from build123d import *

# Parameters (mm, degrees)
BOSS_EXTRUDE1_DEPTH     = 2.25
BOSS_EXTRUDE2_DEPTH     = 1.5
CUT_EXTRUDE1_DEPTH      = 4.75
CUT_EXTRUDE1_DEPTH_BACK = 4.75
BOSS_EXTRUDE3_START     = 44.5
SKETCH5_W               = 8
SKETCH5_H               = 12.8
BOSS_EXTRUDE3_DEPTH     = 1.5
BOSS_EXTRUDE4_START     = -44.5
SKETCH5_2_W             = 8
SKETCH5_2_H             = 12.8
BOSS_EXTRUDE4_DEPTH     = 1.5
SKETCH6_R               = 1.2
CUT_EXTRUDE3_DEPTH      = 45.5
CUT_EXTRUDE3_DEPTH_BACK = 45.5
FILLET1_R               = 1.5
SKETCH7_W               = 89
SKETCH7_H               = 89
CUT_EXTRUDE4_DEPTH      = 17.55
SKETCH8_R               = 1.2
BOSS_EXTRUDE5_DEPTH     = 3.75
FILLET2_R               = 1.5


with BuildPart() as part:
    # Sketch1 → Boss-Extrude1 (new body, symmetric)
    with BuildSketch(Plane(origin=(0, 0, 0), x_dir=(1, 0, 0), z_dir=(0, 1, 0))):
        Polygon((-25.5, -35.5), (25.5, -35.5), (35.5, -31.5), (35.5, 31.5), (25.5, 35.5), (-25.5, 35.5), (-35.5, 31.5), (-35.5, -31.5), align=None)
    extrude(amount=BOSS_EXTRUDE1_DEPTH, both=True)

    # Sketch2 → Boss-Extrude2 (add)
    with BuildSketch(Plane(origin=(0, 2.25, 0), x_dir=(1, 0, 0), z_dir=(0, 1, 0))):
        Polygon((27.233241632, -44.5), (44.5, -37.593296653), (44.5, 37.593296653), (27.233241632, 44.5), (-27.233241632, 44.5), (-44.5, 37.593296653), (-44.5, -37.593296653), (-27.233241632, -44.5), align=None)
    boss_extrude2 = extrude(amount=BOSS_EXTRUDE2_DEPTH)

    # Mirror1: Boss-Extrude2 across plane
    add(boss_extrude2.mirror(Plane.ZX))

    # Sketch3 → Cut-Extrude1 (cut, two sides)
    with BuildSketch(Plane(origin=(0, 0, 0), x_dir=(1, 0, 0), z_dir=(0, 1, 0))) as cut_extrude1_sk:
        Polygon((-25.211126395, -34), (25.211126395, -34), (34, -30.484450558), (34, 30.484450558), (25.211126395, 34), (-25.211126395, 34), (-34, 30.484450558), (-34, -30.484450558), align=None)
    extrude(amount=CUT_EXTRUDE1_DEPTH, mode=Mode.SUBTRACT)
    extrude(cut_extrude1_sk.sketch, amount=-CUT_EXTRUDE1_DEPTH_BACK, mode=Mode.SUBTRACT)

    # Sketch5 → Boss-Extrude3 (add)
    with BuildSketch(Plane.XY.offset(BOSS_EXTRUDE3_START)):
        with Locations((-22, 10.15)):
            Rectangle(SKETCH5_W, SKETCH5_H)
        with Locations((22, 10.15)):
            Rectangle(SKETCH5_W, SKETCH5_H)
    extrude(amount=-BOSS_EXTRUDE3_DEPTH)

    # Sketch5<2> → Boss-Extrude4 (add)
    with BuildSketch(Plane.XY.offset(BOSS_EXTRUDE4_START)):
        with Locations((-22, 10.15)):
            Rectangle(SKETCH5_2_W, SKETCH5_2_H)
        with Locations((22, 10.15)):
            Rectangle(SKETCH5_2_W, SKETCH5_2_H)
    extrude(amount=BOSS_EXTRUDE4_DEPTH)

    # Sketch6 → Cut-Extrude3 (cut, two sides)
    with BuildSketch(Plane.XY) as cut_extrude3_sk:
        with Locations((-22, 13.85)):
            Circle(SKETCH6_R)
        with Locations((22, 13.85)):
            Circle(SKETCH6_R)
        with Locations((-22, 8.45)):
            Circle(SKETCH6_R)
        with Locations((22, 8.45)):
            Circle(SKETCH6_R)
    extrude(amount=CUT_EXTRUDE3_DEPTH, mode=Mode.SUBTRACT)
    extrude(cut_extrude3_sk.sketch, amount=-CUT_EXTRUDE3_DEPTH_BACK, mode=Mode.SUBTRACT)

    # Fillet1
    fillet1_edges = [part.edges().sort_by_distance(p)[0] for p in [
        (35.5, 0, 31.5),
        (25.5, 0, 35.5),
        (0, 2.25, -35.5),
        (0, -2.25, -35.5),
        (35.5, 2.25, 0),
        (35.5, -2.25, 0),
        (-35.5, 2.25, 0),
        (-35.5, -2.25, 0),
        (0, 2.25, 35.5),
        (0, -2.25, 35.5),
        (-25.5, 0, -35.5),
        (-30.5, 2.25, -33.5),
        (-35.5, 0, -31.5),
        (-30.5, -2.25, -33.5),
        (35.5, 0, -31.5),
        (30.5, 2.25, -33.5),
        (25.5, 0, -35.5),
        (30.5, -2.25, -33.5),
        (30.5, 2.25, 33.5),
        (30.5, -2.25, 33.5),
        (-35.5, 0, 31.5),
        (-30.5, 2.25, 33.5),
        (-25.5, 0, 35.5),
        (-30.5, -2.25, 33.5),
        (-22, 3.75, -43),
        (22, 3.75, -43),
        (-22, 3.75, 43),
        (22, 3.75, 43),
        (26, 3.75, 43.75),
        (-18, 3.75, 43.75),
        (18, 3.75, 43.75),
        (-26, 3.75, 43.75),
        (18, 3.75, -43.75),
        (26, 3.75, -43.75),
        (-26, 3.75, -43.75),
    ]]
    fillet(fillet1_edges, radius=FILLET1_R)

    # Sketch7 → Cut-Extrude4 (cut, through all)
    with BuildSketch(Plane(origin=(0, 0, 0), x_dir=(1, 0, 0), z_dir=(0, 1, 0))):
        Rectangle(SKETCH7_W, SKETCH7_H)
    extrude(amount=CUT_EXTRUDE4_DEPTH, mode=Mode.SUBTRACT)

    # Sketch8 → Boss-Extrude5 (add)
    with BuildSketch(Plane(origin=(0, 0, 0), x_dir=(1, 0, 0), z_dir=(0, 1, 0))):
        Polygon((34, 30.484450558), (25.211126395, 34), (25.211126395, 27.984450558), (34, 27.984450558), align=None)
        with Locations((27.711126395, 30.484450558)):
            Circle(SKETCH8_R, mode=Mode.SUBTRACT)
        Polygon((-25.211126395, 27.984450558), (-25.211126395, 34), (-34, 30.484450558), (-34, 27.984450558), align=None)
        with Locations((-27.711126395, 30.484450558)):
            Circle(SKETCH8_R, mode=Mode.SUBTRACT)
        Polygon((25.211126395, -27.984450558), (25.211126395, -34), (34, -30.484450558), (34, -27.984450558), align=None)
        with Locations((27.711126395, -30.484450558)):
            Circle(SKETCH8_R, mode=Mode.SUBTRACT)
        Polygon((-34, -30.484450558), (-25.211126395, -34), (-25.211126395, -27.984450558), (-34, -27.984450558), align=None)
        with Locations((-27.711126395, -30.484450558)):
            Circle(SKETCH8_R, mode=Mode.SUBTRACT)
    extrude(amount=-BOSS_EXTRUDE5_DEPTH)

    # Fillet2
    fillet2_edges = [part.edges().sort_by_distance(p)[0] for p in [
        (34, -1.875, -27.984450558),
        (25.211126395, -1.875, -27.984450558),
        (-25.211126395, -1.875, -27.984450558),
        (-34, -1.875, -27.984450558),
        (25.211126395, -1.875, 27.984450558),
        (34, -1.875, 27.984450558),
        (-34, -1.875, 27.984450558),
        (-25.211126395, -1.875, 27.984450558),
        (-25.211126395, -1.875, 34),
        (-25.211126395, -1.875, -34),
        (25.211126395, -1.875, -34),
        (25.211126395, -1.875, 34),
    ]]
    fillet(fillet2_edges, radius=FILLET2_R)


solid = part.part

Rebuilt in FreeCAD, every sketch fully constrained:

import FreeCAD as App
import Part
import Sketcher
Q = App.Units.Quantity


def edges_at(feature, points):
    """Names of the edges that pass closest to the given points."""
    edges = feature.Shape.Edges
    near = lambda p: min(range(len(edges)), key=lambda i: edges[i].distToShape(Part.Vertex(*p))[0])
    return sorted({f"Edge{near(p) + 1}" for p in points})

doc = App.newDocument("Part")
body = doc.addObject("PartDesign::Body", "Body")

# Sketch on XZ plane
sketch1 = body.newObject("Sketcher::SketchObject", "Sketch")
sketch1.AttachmentSupport = (doc.getObject("XZ_Plane"), [""])
sketch1.MapMode = "FlatFace"
sketch1.addGeometry([
    Part.LineSegment(App.Vector(-26, 36, 0), App.Vector(26, 36, 0)),  # 0
    Part.LineSegment(App.Vector(26, 36, 0), App.Vector(36, 32, 0)),  # 1
    Part.LineSegment(App.Vector(36, 32, 0), App.Vector(36, -32, 0)),  # 2
    Part.LineSegment(App.Vector(36, -32, 0), App.Vector(26, -36, 0)),  # 3
    Part.LineSegment(App.Vector(26, -36, 0), App.Vector(-26, -36, 0)),  # 4
    Part.LineSegment(App.Vector(-26, -36, 0), App.Vector(-36, -32, 0)),  # 5
    Part.LineSegment(App.Vector(-36, -32, 0), App.Vector(-36, 32, 0)),  # 6
    Part.LineSegment(App.Vector(-36, 32, 0), App.Vector(-26, 36, 0)),  # 7
], False)
sketch1.addConstraint([
    Sketcher.Constraint("Coincident", 0, 2, 1, 1),
    Sketcher.Constraint("Coincident", 1, 2, 2, 1),
    Sketcher.Constraint("Coincident", 2, 2, 3, 1),
    Sketcher.Constraint("Coincident", 3, 2, 4, 1),
    Sketcher.Constraint("Coincident", 4, 2, 5, 1),
    Sketcher.Constraint("Coincident", 5, 2, 6, 1),
    Sketcher.Constraint("Coincident", 6, 2, 7, 1),
    Sketcher.Constraint("Coincident", 7, 2, 0, 1),
    Sketcher.Constraint("Horizontal", 0),
    Sketcher.Constraint("Vertical", 2),
    Sketcher.Constraint("Horizontal", 4),
    Sketcher.Constraint("Vertical", 6),
    Sketcher.Constraint("Symmetric", 0, 2, 4, 2, -1, 1),
    Sketcher.Constraint("Symmetric", 1, 2, 5, 2, -1, 1),
    Sketcher.Constraint("Parallel", 3, 7),
    Sketcher.Constraint("Horizontal", 2, 2, 5, 2),
    Sketcher.Constraint("Horizontal", 1, 2, 6, 2),
    Sketcher.Constraint("Vertical", 0, 2, 3, 2),
    Sketcher.Constraint("DistanceX", 0, 1, 0, 2, Q("51 mm")),
    Sketcher.Constraint("DistanceY", 2, 2, 2, 1, Q("63 mm")),
    Sketcher.Constraint("DistanceX", 0, 2, 1, 2, Q("10 mm")),
    Sketcher.Constraint("DistanceY", 1, 2, 0, 2, Q("4 mm")),
])
pad1 = body.newObject("PartDesign::Pad", "Pad")
pad1.Profile = sketch1
pad1.Length = 4.5
pad1.Midplane = True

# Sketch on XZ plane
sketch2 = body.newObject("Sketcher::SketchObject", "Sketch001")
sketch2.AttachmentSupport = (doc.getObject("XZ_Plane"), [""])
sketch2.MapMode = "FlatFace"
sketch2.AttachmentOffset = App.Placement(App.Vector(0, 0, -2.25), App.Rotation())
sketch2.addGeometry([
    Part.LineSegment(App.Vector(27, 44, 0), App.Vector(44, 38, 0)),  # 0
    Part.LineSegment(App.Vector(44, 38, 0), App.Vector(44, -38, 0)),  # 1
    Part.LineSegment(App.Vector(44, -38, 0), App.Vector(27, -44, 0)),  # 2
    Part.LineSegment(App.Vector(27, -44, 0), App.Vector(-27, -44, 0)),  # 3
    Part.LineSegment(App.Vector(-27, -44, 0), App.Vector(-44, -38, 0)),  # 4
    Part.LineSegment(App.Vector(-44, -38, 0), App.Vector(-44, 38, 0)),  # 5
    Part.LineSegment(App.Vector(-44, 38, 0), App.Vector(-27, 44, 0)),  # 6
    Part.LineSegment(App.Vector(-27, 44, 0), App.Vector(27, 44, 0)),  # 7
], False)
sketch2.addConstraint([
    Sketcher.Constraint("Coincident", 0, 2, 1, 1),
    Sketcher.Constraint("Coincident", 1, 2, 2, 1),
    Sketcher.Constraint("Coincident", 2, 2, 3, 1),
    Sketcher.Constraint("Coincident", 3, 2, 4, 1),
    Sketcher.Constraint("Coincident", 4, 2, 5, 1),
    Sketcher.Constraint("Coincident", 5, 2, 6, 1),
    Sketcher.Constraint("Coincident", 6, 2, 7, 1),
    Sketcher.Constraint("Coincident", 7, 2, 0, 1),
    Sketcher.Constraint("Vertical", 1),
    Sketcher.Constraint("Horizontal", 3),
    Sketcher.Constraint("Vertical", 5),
    Sketcher.Constraint("Horizontal", 7),
    Sketcher.Constraint("Symmetric", 0, 2, 4, 2, -1, 1),
    Sketcher.Constraint("Symmetric", 2, 2, 6, 2, -1, 1),
    Sketcher.Constraint("Parallel", 0, 4),
    Sketcher.Constraint("Parallel", 2, 6),
    Sketcher.Constraint("Horizontal", 1, 2, 4, 2),
    Sketcher.Constraint("Vertical", 3, 2, 6, 2),
    Sketcher.Constraint("DistanceX", 4, 2, 1, 2, Q("89 mm")),
    Sketcher.Constraint("DistanceY", 3, 2, 6, 2, Q("89 mm")),
    Sketcher.Constraint("DistanceX", 3, 2, 3, 1, Q("54.466483 mm")),
    Sketcher.Constraint("DistanceY", 1, 2, 1, 1, Q("75.186593 mm")),
])
pad2 = body.newObject("PartDesign::Pad", "Pad001")
pad2.Profile = sketch2
pad2.Length = 1.5
pad2.Reversed = True
doc.recompute()

mirrored = body.newObject("PartDesign::Mirrored", "Mirrored")
mirrored.Originals = [pad2]
mirrored.MirrorPlane = (doc.getObject("XZ_Plane"), [""])
body.Tip = mirrored

# Sketch on XZ plane
sketch3 = body.newObject("Sketcher::SketchObject", "Sketch002")
sketch3.AttachmentSupport = (doc.getObject("XZ_Plane"), [""])
sketch3.MapMode = "FlatFace"
sketch3.addGeometry([
    Part.LineSegment(App.Vector(-25, 34, 0), App.Vector(25, 34, 0)),  # 0
    Part.LineSegment(App.Vector(25, 34, 0), App.Vector(34, 30, 0)),  # 1
    Part.LineSegment(App.Vector(34, 30, 0), App.Vector(34, -30, 0)),  # 2
    Part.LineSegment(App.Vector(34, -30, 0), App.Vector(25, -34, 0)),  # 3
    Part.LineSegment(App.Vector(25, -34, 0), App.Vector(-25, -34, 0)),  # 4
    Part.LineSegment(App.Vector(-25, -34, 0), App.Vector(-34, -30, 0)),  # 5
    Part.LineSegment(App.Vector(-34, -30, 0), App.Vector(-34, 30, 0)),  # 6
    Part.LineSegment(App.Vector(-34, 30, 0), App.Vector(-25, 34, 0)),  # 7
], False)
sketch3.addConstraint([
    Sketcher.Constraint("Coincident", 0, 2, 1, 1),
    Sketcher.Constraint("Coincident", 1, 2, 2, 1),
    Sketcher.Constraint("Coincident", 2, 2, 3, 1),
    Sketcher.Constraint("Coincident", 3, 2, 4, 1),
    Sketcher.Constraint("Coincident", 4, 2, 5, 1),
    Sketcher.Constraint("Coincident", 5, 2, 6, 1),
    Sketcher.Constraint("Coincident", 6, 2, 7, 1),
    Sketcher.Constraint("Coincident", 7, 2, 0, 1),
    Sketcher.Constraint("Horizontal", 0),
    Sketcher.Constraint("Vertical", 2),
    Sketcher.Constraint("Horizontal", 4),
    Sketcher.Constraint("Vertical", 6),
    Sketcher.Constraint("Symmetric", 0, 2, 4, 2, -1, 1),
    Sketcher.Constraint("Symmetric", 1, 2, 5, 2, -1, 1),
    Sketcher.Constraint("Parallel", 3, 7),
    Sketcher.Constraint("Horizontal", 2, 2, 5, 2),
    Sketcher.Constraint("Horizontal", 1, 2, 6, 2),
    Sketcher.Constraint("Vertical", 0, 2, 3, 2),
    Sketcher.Constraint("DistanceY", -1, 1, 0, 2, Q("34 mm")),
    Sketcher.Constraint("DistanceX", -1, 1, 1, 2, Q("34 mm")),
    Sketcher.Constraint("DistanceY", 2, 2, 2, 1, Q("60.968901 mm")),
    Sketcher.Constraint("DistanceX", 0, 1, 0, 2, Q("50.422253 mm")),
])
pocket1 = body.newObject("PartDesign::Pocket", "Pocket")
pocket1.Profile = sketch3
pocket1.Type = "ThroughAll"
pocket1.Midplane = True

# Sketch on XY plane
sketch4 = body.newObject("Sketcher::SketchObject", "Sketch003")
sketch4.AttachmentSupport = (doc.getObject("XY_Plane"), [""])
sketch4.MapMode = "FlatFace"
sketch4.AttachmentOffset = App.Placement(App.Vector(0, 0, 44.5), App.Rotation())
sketch4.addGeometry([
    Part.LineSegment(App.Vector(-26, 17, 0), App.Vector(-26, 4, 0)),  # 0
    Part.LineSegment(App.Vector(-26, 4, 0), App.Vector(-18, 4, 0)),  # 1
    Part.LineSegment(App.Vector(-18, 4, 0), App.Vector(-18, 17, 0)),  # 2
    Part.LineSegment(App.Vector(-18, 17, 0), App.Vector(-26, 17, 0)),  # 3
    Part.LineSegment(App.Vector(18, 17, 0), App.Vector(18, 4, 0)),  # 4
    Part.LineSegment(App.Vector(18, 4, 0), App.Vector(26, 4, 0)),  # 5
    Part.LineSegment(App.Vector(26, 4, 0), App.Vector(26, 17, 0)),  # 6
    Part.LineSegment(App.Vector(26, 17, 0), App.Vector(18, 17, 0)),  # 7
], False)
sketch4.addConstraint([
    Sketcher.Constraint("Coincident", 0, 2, 1, 1),
    Sketcher.Constraint("Coincident", 1, 2, 2, 1),
    Sketcher.Constraint("Coincident", 2, 2, 3, 1),
    Sketcher.Constraint("Coincident", 3, 2, 0, 1),
    Sketcher.Constraint("Coincident", 4, 2, 5, 1),
    Sketcher.Constraint("Coincident", 5, 2, 6, 1),
    Sketcher.Constraint("Coincident", 6, 2, 7, 1),
    Sketcher.Constraint("Coincident", 7, 2, 4, 1),
    Sketcher.Constraint("Vertical", 0),
    Sketcher.Constraint("Horizontal", 1),
    Sketcher.Constraint("Vertical", 2),
    Sketcher.Constraint("Horizontal", 3),
    Sketcher.Constraint("Vertical", 4),
    Sketcher.Constraint("Horizontal", 5),
    Sketcher.Constraint("Vertical", 6),
    Sketcher.Constraint("Horizontal", 7),
    Sketcher.Constraint("Symmetric", 1, 2, 4, 2, -2),
    Sketcher.Constraint("Symmetric", 3, 2, 6, 2, -2),
    Sketcher.Constraint("DistanceX", 1, 1, 1, 2, Q("8 mm")),
    Sketcher.Constraint("DistanceY", 0, 2, 0, 1, Q("12.8 mm")),
    Sketcher.Constraint("DistanceX", 0, 2, -1, 1, Q("26 mm")),
    Sketcher.Constraint("DistanceY", -1, 1, 0, 2, Q("3.75 mm")),
])
pad3 = body.newObject("PartDesign::Pad", "Pad002")
pad3.Profile = sketch4
pad3.Length = 1.5
pad3.Reversed = True

# Sketch on XY plane
sketch5 = body.newObject("Sketcher::SketchObject", "Sketch004")
sketch5.AttachmentSupport = (doc.getObject("XY_Plane"), [""])
sketch5.MapMode = "FlatFace"
sketch5.AttachmentOffset = App.Placement(App.Vector(0, 0, -44.5), App.Rotation())
sketch5.addGeometry([
    Part.LineSegment(App.Vector(-26, 17, 0), App.Vector(-26, 4, 0)),  # 0
    Part.LineSegment(App.Vector(-26, 4, 0), App.Vector(-18, 4, 0)),  # 1
    Part.LineSegment(App.Vector(-18, 4, 0), App.Vector(-18, 17, 0)),  # 2
    Part.LineSegment(App.Vector(-18, 17, 0), App.Vector(-26, 17, 0)),  # 3
    Part.LineSegment(App.Vector(18, 17, 0), App.Vector(18, 4, 0)),  # 4
    Part.LineSegment(App.Vector(18, 4, 0), App.Vector(26, 4, 0)),  # 5
    Part.LineSegment(App.Vector(26, 4, 0), App.Vector(26, 17, 0)),  # 6
    Part.LineSegment(App.Vector(26, 17, 0), App.Vector(18, 17, 0)),  # 7
], False)
sketch5.addConstraint([
    Sketcher.Constraint("Coincident", 0, 2, 1, 1),
    Sketcher.Constraint("Coincident", 1, 2, 2, 1),
    Sketcher.Constraint("Coincident", 2, 2, 3, 1),
    Sketcher.Constraint("Coincident", 3, 2, 0, 1),
    Sketcher.Constraint("Coincident", 4, 2, 5, 1),
    Sketcher.Constraint("Coincident", 5, 2, 6, 1),
    Sketcher.Constraint("Coincident", 6, 2, 7, 1),
    Sketcher.Constraint("Coincident", 7, 2, 4, 1),
    Sketcher.Constraint("Vertical", 0),
    Sketcher.Constraint("Horizontal", 1),
    Sketcher.Constraint("Vertical", 2),
    Sketcher.Constraint("Horizontal", 3),
    Sketcher.Constraint("Vertical", 4),
    Sketcher.Constraint("Horizontal", 5),
    Sketcher.Constraint("Vertical", 6),
    Sketcher.Constraint("Horizontal", 7),
    Sketcher.Constraint("Symmetric", 1, 2, 4, 2, -2),
    Sketcher.Constraint("Symmetric", 3, 2, 6, 2, -2),
    Sketcher.Constraint("DistanceX", 1, 1, 1, 2, Q("8 mm")),
    Sketcher.Constraint("DistanceY", 0, 2, 0, 1, Q("12.8 mm")),
    Sketcher.Constraint("DistanceX", 0, 2, -1, 1, Q("26 mm")),
    Sketcher.Constraint("DistanceY", -1, 1, 0, 2, Q("3.75 mm")),
])
pad4 = body.newObject("PartDesign::Pad", "Pad003")
pad4.Profile = sketch5
pad4.Length = 1.5

# Sketch on XY plane
sketch6 = body.newObject("Sketcher::SketchObject", "Sketch005")
sketch6.AttachmentSupport = (doc.getObject("XY_Plane"), [""])
sketch6.MapMode = "FlatFace"
sketch6.addGeometry([
    Part.Circle(App.Vector(-22, 13.8, 0), App.Vector(0, 0, 1), 1.2),
    Part.Circle(App.Vector(22, 13.8, 0), App.Vector(0, 0, 1), 1.2),
    Part.Circle(App.Vector(-22, 8.4, 0), App.Vector(0, 0, 1), 1.2),
    Part.Circle(App.Vector(22, 8.4, 0), App.Vector(0, 0, 1), 1.2),
], False)
sketch6.addConstraint([
    Sketcher.Constraint("Equal", 0, 1),
    Sketcher.Constraint("Equal", 1, 2),
    Sketcher.Constraint("Equal", 2, 3),
    Sketcher.Constraint("Symmetric", 0, 3, 1, 3, -2),
    Sketcher.Constraint("Symmetric", 2, 3, 3, 3, -2),
    Sketcher.Constraint("Vertical", 0, 3, 2, 3),
    Sketcher.Constraint("Diameter", 0, Q("2.4 mm")),
    Sketcher.Constraint("DistanceX", 0, 3, -1, 1, Q("22 mm")),
    Sketcher.Constraint("DistanceY", 2, 3, 0, 3, Q("5.4 mm")),
    Sketcher.Constraint("DistanceY", -1, 1, 0, 3, Q("13.85 mm")),
])
pocket2 = body.newObject("PartDesign::Pocket", "Pocket001")
pocket2.Profile = sketch6
pocket2.Type = "ThroughAll"
pocket2.Midplane = True
doc.recompute()

fillet = body.newObject("PartDesign::Fillet", "Fillet")
fillet.Base = (pocket2, edges_at(pocket2, [
    (35.5, 0, 31.5),
    (25.5, 0, 35.5),
    (0, 2.25, -35.5),
    (0, -2.25, -35.5),
    (35.5, 2.25, 0),
    (35.5, -2.25, 0),
    (-35.5, 2.25, 0),
    (-35.5, -2.25, 0),
    (0, 2.25, 35.5),
    (0, -2.25, 35.5),
    (-25.5, 0, -35.5),
    (-30.5, 2.25, -33.5),
    (-35.5, 0, -31.5),
    (-30.5, -2.25, -33.5),
    (35.5, 0, -31.5),
    (30.5, 2.25, -33.5),
    (25.5, 0, -35.5),
    (30.5, -2.25, -33.5),
    (30.5, 2.25, 33.5),
    (30.5, -2.25, 33.5),
    (-35.5, 0, 31.5),
    (-30.5, 2.25, 33.5),
    (-25.5, 0, 35.5),
    (-30.5, -2.25, 33.5),
    (-22, 3.75, -43),
    (22, 3.75, -43),
    (-22, 3.75, 43),
    (22, 3.75, 43),
    (26, 3.75, 43.75),
    (-18, 3.75, 43.75),
    (18, 3.75, 43.75),
    (-26, 3.75, 43.75),
    (18, 3.75, -43.75),
    (26, 3.75, -43.75),
    (-26, 3.75, -43.75),
]))
fillet.Radius = 1.5

# Sketch on XZ plane
sketch7 = body.newObject("Sketcher::SketchObject", "Sketch006")
sketch7.AttachmentSupport = (doc.getObject("XZ_Plane"), [""])
sketch7.MapMode = "FlatFace"
sketch7.addGeometry([
    Part.LineSegment(App.Vector(-44, -44, 0), App.Vector(-44, 44, 0)),
    Part.LineSegment(App.Vector(-44, 44, 0), App.Vector(44, 44, 0)),
    Part.LineSegment(App.Vector(44, 44, 0), App.Vector(44, -44, 0)),
    Part.LineSegment(App.Vector(44, -44, 0), App.Vector(-44, -44, 0)),
], False)
sketch7.addConstraint([
    Sketcher.Constraint("Coincident", 0, 2, 1, 1),
    Sketcher.Constraint("Coincident", 1, 2, 2, 1),
    Sketcher.Constraint("Coincident", 2, 2, 3, 1),
    Sketcher.Constraint("Coincident", 3, 2, 0, 1),
    Sketcher.Constraint("Vertical", 0),
    Sketcher.Constraint("Horizontal", 1),
    Sketcher.Constraint("Vertical", 2),
    Sketcher.Constraint("Horizontal", 3),
    Sketcher.Constraint("Symmetric", 0, 2, 2, 2, -1, 1),
    Sketcher.Constraint("Equal", 3, 0),
    Sketcher.Constraint("DistanceX", 1, 1, 1, 2, Q("89 mm")),
])
pocket3 = body.newObject("PartDesign::Pocket", "Pocket002")
pocket3.Profile = sketch7
pocket3.Type = "ThroughAll"

# Sketch on XZ plane
sketch8 = body.newObject("Sketcher::SketchObject", "Sketch007")
sketch8.AttachmentSupport = (doc.getObject("XZ_Plane"), [""])
sketch8.MapMode = "FlatFace"
sketch8.addGeometry([
    Part.LineSegment(App.Vector(34, -30.5, 0), App.Vector(25.2, -34, 0)),  # 0
    Part.LineSegment(App.Vector(25.2, -34, 0), App.Vector(25.2, -28, 0)),  # 1
    Part.LineSegment(App.Vector(25.2, -28, 0), App.Vector(34, -28, 0)),  # 2
    Part.LineSegment(App.Vector(34, -28, 0), App.Vector(34, -30.5, 0)),  # 3
    Part.Circle(App.Vector(27.7, -30.5, 0), App.Vector(0, 0, 1), 1.2),  # 4
    Part.LineSegment(App.Vector(-25.2, -28, 0), App.Vector(-25.2, -34, 0)),  # 5
    Part.LineSegment(App.Vector(-25.2, -34, 0), App.Vector(-34, -30.5, 0)),  # 6
    Part.LineSegment(App.Vector(-34, -30.5, 0), App.Vector(-34, -28, 0)),  # 7
    Part.LineSegment(App.Vector(-34, -28, 0), App.Vector(-25.2, -28, 0)),  # 8
    Part.Circle(App.Vector(-27.7, -30.5, 0), App.Vector(0, 0, 1), 1.2),  # 9
    Part.LineSegment(App.Vector(25.2, 28, 0), App.Vector(25.2, 34, 0)),  # 10
    Part.LineSegment(App.Vector(25.2, 34, 0), App.Vector(34, 30.5, 0)),  # 11
    Part.LineSegment(App.Vector(34, 30.5, 0), App.Vector(34, 28, 0)),  # 12
    Part.LineSegment(App.Vector(34, 28, 0), App.Vector(25.2, 28, 0)),  # 13
    Part.Circle(App.Vector(27.7, 30.5, 0), App.Vector(0, 0, 1), 1.2),  # 14
    Part.LineSegment(App.Vector(-34, 30.5, 0), App.Vector(-25.2, 34, 0)),  # 15
    Part.LineSegment(App.Vector(-25.2, 34, 0), App.Vector(-25.2, 28, 0)),  # 16
    Part.LineSegment(App.Vector(-25.2, 28, 0), App.Vector(-34, 28, 0)),  # 17
    Part.LineSegment(App.Vector(-34, 28, 0), App.Vector(-34, 30.5, 0)),  # 18
    Part.Circle(App.Vector(-27.7, 30.5, 0), App.Vector(0, 0, 1), 1.2),  # 19
], False)
sketch8.addConstraint([
    Sketcher.Constraint("Coincident", 0, 2, 1, 1),
    Sketcher.Constraint("Coincident", 1, 2, 2, 1),
    Sketcher.Constraint("Coincident", 2, 2, 3, 1),
    Sketcher.Constraint("Coincident", 3, 2, 0, 1),
    Sketcher.Constraint("Coincident", 5, 2, 6, 1),
    Sketcher.Constraint("Coincident", 6, 2, 7, 1),
    Sketcher.Constraint("Coincident", 7, 2, 8, 1),
    Sketcher.Constraint("Coincident", 8, 2, 5, 1),
    Sketcher.Constraint("Coincident", 10, 2, 11, 1),
    Sketcher.Constraint("Coincident", 11, 2, 12, 1),
    Sketcher.Constraint("Coincident", 12, 2, 13, 1),
    Sketcher.Constraint("Coincident", 13, 2, 10, 1),
    Sketcher.Constraint("Coincident", 15, 2, 16, 1),
    Sketcher.Constraint("Coincident", 16, 2, 17, 1),
    Sketcher.Constraint("Coincident", 17, 2, 18, 1),
    Sketcher.Constraint("Coincident", 18, 2, 15, 1),
    Sketcher.Constraint("Vertical", 1),
    Sketcher.Constraint("Horizontal", 2),
    Sketcher.Constraint("Vertical", 3),
    Sketcher.Constraint("Vertical", 5),
    Sketcher.Constraint("Vertical", 7),
    Sketcher.Constraint("Horizontal", 8),
    Sketcher.Constraint("Vertical", 10),
    Sketcher.Constraint("Vertical", 12),
    Sketcher.Constraint("Horizontal", 13),
    Sketcher.Constraint("Vertical", 16),
    Sketcher.Constraint("Horizontal", 17),
    Sketcher.Constraint("Vertical", 18),
    Sketcher.Constraint("Equal", 4, 9),
    Sketcher.Constraint("Equal", 9, 14),
    Sketcher.Constraint("Equal", 14, 19),
    Sketcher.Constraint("Symmetric", 9, 3, 14, 3, -1, 1),
    Sketcher.Constraint("Symmetric", 4, 3, 19, 3, -1, 1),
    Sketcher.Constraint("Symmetric", 5, 2, 10, 2, -1, 1),
    Sketcher.Constraint("Symmetric", 6, 2, 11, 2, -1, 1),
    Sketcher.Constraint("Symmetric", 0, 2, 15, 2, -1, 1),
    Sketcher.Constraint("Symmetric", 2, 2, 17, 2, -1, 1),
    Sketcher.Constraint("Symmetric", 4, 3, 9, 3, -2),
    Sketcher.Constraint("Symmetric", 0, 2, 5, 2, -2),
    Sketcher.Constraint("Symmetric", 3, 2, 6, 2, -2),
    Sketcher.Constraint("Parallel", 0, 15),
    Sketcher.Constraint("Horizontal", 9, 3, 3, 2),
    Sketcher.Constraint("Horizontal", 2, 2, 7, 2),
    Sketcher.Constraint("Horizontal", 13, 2, 16, 2),
    Sketcher.Constraint("Diameter", 4, Q("2.4 mm")),
    Sketcher.Constraint("DistanceY", 3, 2, 3, 1, Q("2.5 mm")),
    Sketcher.Constraint("DistanceY", 0, 2, -1, 1, Q("34 mm")),
    Sketcher.Constraint("DistanceX", -1, 1, 2, 2, Q("34 mm")),
    Sketcher.Constraint("DistanceX", 0, 2, 4, 3, Q("2.5 mm")),
    Sketcher.Constraint("DistanceY", 1, 1, 1, 2, Q("6.015549 mm")),
    Sketcher.Constraint("DistanceX", 2, 1, 2, 2, Q("8.788874 mm")),
])
pad5 = body.newObject("PartDesign::Pad", "Pad004")
pad5.Profile = sketch8
pad5.Length = 3.75
doc.recompute()

fillet2 = body.newObject("PartDesign::Fillet", "Fillet001")
fillet2.Base = (pad5, edges_at(pad5, [
    (34, -1.875, -27.984),
    (25.211, -1.875, -27.984),
    (-25.211, -1.875, -27.984),
    (-34, -1.875, -27.984),
    (25.211, -1.875, 27.984),
    (34, -1.875, 27.984),
    (-34, -1.875, 27.984),
    (-25.211, -1.875, 27.984),
    (-25.211, -1.875, 34),
    (-25.211, -1.875, -34),
    (25.211, -1.875, -34),
    (25.211, -1.875, 34),
]))
fillet2.Radius = 1.5

doc.recompute()
